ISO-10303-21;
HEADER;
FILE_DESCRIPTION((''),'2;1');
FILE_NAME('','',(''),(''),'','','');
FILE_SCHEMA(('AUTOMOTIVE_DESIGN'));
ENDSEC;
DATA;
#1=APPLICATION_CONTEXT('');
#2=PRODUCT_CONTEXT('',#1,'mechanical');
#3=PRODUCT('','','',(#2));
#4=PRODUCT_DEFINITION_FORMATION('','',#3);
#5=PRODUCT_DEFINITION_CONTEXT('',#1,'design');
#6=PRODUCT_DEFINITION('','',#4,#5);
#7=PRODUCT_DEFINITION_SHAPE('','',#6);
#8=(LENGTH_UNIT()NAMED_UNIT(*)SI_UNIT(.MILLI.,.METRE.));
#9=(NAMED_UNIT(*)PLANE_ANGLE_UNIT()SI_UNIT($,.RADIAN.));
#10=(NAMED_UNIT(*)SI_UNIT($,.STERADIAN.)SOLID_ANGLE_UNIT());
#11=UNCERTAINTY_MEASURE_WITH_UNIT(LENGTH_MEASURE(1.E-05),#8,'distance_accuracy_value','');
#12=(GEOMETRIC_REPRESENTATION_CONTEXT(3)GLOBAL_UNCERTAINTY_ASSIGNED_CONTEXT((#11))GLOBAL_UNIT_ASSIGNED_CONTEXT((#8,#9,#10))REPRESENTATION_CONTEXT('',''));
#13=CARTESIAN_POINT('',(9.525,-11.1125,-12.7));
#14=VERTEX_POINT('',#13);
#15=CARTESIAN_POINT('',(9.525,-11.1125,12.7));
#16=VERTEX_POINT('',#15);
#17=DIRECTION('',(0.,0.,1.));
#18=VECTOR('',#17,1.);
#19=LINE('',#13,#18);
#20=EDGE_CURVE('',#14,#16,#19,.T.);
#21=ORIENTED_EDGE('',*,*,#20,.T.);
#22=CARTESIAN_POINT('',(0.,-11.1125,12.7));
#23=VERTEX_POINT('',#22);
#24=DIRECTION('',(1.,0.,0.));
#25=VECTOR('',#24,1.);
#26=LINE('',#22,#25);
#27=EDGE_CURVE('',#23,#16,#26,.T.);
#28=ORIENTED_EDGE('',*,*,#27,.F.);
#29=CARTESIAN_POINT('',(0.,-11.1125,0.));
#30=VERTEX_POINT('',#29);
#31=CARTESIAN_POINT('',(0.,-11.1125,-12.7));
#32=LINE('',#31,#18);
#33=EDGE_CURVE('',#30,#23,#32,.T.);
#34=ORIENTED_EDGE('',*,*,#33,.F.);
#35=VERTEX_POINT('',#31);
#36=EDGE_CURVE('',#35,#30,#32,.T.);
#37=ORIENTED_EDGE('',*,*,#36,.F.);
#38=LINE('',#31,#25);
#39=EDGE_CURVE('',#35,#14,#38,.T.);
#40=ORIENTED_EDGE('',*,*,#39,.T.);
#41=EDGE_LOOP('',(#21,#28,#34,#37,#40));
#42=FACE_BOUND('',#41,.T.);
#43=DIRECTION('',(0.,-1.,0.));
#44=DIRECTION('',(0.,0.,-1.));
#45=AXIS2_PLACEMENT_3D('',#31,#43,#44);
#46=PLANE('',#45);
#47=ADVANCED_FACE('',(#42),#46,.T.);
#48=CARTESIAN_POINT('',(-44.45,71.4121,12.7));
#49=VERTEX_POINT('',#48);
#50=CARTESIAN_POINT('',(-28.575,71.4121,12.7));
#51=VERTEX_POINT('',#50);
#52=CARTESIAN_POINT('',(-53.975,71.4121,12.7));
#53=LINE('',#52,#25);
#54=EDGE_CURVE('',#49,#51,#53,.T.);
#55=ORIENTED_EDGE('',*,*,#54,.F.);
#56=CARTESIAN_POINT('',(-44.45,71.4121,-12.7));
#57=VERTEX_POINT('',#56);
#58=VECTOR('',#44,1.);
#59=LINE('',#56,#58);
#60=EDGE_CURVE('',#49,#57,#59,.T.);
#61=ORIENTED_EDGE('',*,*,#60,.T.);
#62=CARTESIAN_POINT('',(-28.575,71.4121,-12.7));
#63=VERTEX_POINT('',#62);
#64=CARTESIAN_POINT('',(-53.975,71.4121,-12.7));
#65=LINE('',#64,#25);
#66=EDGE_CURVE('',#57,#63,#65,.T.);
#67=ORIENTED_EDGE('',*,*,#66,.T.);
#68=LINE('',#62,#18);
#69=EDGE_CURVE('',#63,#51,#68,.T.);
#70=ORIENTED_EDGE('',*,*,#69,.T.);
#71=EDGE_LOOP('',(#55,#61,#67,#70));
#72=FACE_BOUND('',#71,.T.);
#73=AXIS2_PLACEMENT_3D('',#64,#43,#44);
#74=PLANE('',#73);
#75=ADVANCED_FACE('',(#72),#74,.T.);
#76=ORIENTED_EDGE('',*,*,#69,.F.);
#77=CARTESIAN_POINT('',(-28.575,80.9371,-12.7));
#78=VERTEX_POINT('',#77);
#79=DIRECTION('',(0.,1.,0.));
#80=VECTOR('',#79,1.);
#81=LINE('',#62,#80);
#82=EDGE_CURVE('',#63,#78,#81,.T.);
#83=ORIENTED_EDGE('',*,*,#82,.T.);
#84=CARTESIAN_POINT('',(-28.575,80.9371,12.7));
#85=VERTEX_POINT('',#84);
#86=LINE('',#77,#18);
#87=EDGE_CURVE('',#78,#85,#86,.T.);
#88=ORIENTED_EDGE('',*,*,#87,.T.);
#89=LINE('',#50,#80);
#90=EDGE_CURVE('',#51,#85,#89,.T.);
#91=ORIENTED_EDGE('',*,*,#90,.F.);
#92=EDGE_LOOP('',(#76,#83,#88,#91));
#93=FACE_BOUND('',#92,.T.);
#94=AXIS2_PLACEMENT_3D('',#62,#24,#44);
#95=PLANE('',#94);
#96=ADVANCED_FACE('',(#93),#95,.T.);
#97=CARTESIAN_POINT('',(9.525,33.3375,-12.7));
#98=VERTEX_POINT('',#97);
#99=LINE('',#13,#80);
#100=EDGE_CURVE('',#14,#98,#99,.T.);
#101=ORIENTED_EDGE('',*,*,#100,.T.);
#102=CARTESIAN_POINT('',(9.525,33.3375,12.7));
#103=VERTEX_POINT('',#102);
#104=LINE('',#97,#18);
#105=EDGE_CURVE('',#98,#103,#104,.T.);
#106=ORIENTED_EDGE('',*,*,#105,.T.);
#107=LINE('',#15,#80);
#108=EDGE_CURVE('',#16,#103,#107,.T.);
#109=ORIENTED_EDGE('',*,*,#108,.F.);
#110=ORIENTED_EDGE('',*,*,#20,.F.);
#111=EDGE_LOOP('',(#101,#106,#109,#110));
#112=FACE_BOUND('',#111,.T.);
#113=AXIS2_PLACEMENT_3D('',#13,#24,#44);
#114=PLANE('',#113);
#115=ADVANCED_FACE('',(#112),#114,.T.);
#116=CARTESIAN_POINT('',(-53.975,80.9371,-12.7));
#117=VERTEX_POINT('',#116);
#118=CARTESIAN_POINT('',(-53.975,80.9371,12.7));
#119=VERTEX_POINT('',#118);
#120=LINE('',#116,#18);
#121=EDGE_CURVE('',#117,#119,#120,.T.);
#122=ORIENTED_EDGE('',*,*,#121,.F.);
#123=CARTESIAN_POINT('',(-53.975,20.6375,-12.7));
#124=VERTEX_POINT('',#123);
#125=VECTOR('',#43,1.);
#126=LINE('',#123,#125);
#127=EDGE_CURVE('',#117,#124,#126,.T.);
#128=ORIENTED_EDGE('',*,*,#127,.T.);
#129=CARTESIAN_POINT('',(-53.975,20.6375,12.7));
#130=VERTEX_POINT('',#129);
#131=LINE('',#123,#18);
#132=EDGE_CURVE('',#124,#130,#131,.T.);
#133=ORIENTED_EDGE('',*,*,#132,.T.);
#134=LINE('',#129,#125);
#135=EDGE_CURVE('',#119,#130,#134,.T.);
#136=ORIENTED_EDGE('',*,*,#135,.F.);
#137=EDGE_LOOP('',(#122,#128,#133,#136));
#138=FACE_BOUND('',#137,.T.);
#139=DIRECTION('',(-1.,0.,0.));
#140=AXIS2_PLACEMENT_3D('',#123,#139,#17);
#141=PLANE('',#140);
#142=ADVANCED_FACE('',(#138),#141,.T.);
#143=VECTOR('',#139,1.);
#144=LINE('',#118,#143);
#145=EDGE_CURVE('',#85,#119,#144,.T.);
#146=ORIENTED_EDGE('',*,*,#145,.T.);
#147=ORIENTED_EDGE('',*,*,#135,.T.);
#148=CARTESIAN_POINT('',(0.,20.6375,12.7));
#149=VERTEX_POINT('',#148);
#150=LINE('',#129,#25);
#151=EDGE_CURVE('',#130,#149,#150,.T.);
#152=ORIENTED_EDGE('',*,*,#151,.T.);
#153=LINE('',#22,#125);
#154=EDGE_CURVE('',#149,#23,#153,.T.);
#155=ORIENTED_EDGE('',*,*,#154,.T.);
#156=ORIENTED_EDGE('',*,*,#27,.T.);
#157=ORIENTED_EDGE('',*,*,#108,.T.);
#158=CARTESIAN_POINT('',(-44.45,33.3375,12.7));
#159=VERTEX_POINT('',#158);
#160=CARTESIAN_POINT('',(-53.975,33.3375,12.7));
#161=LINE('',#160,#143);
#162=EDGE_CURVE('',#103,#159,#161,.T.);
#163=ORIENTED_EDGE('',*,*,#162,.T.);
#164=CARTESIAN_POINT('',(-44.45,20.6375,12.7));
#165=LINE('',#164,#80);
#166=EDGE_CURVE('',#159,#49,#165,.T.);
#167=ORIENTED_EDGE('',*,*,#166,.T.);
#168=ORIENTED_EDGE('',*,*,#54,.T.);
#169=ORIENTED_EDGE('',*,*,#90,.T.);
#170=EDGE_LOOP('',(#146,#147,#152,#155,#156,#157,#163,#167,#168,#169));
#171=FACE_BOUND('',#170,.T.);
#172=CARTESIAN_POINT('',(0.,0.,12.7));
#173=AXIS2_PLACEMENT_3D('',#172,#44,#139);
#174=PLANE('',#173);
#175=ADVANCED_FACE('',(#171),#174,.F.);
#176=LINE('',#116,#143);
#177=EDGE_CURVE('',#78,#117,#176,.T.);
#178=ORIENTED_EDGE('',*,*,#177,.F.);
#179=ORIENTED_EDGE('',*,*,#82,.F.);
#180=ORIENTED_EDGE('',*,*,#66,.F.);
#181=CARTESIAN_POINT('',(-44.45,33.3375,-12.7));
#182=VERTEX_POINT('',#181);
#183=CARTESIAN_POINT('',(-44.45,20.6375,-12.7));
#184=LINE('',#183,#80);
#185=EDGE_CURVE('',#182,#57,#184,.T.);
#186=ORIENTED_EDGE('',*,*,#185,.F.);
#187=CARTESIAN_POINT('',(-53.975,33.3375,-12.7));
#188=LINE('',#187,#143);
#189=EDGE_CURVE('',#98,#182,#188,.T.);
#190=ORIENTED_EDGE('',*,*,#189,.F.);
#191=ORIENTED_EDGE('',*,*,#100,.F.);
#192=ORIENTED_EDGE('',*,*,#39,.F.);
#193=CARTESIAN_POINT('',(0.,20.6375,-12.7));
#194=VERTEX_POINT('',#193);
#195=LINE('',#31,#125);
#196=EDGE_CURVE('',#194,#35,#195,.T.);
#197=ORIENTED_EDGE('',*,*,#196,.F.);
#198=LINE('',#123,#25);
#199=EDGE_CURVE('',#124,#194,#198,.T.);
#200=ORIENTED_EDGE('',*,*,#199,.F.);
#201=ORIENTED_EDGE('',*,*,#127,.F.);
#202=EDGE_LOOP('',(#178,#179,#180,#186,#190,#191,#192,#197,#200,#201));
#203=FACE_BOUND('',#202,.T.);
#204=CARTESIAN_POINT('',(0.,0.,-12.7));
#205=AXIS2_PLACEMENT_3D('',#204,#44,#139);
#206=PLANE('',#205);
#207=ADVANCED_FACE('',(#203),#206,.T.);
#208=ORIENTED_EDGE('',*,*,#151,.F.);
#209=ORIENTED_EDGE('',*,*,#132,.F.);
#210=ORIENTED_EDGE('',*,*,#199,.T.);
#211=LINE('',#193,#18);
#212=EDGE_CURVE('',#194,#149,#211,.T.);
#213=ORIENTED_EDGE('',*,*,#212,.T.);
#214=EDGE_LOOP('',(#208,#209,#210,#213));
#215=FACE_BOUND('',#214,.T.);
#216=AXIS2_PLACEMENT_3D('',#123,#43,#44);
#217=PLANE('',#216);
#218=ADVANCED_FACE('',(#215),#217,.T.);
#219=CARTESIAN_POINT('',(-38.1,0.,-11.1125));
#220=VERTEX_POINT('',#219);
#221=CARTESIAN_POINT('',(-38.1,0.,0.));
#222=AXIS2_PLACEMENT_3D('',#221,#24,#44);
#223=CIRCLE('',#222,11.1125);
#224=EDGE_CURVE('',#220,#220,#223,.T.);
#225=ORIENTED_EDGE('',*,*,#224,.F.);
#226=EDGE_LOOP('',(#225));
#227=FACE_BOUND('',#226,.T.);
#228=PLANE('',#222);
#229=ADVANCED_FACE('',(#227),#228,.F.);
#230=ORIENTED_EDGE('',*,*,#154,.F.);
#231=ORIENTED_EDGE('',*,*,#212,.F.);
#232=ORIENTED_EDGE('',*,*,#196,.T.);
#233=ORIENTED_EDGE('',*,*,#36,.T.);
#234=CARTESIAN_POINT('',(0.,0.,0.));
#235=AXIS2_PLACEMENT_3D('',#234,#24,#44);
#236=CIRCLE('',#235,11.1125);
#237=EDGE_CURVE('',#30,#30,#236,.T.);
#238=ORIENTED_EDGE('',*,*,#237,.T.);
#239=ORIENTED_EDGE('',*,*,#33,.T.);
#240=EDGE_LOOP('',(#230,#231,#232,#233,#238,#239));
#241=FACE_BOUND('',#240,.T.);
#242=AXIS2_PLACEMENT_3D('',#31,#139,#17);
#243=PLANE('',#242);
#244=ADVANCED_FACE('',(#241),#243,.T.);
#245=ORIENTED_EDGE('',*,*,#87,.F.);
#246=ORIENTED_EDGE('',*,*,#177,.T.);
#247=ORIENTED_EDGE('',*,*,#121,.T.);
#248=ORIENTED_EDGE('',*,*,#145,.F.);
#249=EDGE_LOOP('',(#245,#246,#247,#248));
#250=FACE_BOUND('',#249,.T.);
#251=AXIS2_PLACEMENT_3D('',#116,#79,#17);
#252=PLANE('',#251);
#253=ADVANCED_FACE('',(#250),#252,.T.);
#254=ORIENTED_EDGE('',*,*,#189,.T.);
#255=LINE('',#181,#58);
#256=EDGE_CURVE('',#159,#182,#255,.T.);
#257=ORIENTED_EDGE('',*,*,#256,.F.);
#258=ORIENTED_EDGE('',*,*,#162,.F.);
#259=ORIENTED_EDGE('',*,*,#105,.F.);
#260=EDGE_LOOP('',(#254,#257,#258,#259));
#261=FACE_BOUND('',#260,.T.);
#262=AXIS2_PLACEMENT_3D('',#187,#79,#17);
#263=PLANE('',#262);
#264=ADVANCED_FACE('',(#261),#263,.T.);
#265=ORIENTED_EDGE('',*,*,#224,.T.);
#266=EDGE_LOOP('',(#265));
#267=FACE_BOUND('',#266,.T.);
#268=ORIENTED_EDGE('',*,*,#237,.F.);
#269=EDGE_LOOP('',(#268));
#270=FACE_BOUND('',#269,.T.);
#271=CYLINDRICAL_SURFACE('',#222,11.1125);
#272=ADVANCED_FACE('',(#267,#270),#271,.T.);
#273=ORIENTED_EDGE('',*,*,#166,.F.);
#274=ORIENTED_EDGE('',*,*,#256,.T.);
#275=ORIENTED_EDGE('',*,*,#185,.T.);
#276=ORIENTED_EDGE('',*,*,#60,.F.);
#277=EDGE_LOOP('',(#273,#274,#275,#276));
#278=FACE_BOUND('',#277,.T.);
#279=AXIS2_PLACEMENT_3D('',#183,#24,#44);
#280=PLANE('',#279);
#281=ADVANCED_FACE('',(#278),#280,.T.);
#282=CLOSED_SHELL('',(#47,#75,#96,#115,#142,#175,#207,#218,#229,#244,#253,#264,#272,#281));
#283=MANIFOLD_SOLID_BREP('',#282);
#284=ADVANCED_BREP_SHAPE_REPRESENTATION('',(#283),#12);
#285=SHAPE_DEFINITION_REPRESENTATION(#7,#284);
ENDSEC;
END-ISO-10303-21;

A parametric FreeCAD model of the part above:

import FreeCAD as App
import Part
import Sketcher
Q = App.Units.Quantity

doc = App.newDocument("Part")
body = doc.addObject("PartDesign::Body", "Body")

sketch1 = doc.addObject("Sketcher::SketchObject", "Sketch")
body.addObject(sketch1)
sketch1.AttachmentSupport = (doc.YZ_Plane, [""])
sketch1.MapMode = "FlatFace"
sketch1.addGeometry(Part.Circle(App.Vector(0, 0, 0), App.Vector(0, 0, 1), 11), False)
sketch1.addConstraint([
    Sketcher.Constraint("Coincident", 0, 3, -1, 1),
    Sketcher.Constraint("Diameter", 0, Q("0.875 in")),
])
pad1 = doc.addObject("PartDesign::Pad", "Pad")
body.addObject(pad1)
pad1.Profile = sketch1
pad1.Length = Q("1.5 in")
pad1.Reversed = True

sketch2 = doc.addObject("Sketcher::SketchObject", "Sketch001")
body.addObject(sketch2)
sketch2.AttachmentSupport = (doc.XY_Plane, [""])
sketch2.MapMode = "FlatFace"
sketch2.addGeometry([
    Part.LineSegment(App.Vector(0, 21, 0), App.Vector(0, -11, 0)),
    Part.LineSegment(App.Vector(0, -11, 0), App.Vector(10, -11, 0)),
    Part.LineSegment(App.Vector(10, -11, 0), App.Vector(10, 21, 0)),
    Part.LineSegment(App.Vector(10, 21, 0), App.Vector(0, 21, 0)),
], False)
sketch2.addConstraint([
    Sketcher.Constraint("Coincident", 0, 2, 1, 1),
    Sketcher.Constraint("Coincident", 1, 2, 2, 1),
    Sketcher.Constraint("Coincident", 2, 2, 3, 1),
    Sketcher.Constraint("Coincident", 3, 2, 0, 1),
    Sketcher.Constraint("Vertical", 0),
    Sketcher.Constraint("Horizontal", 1),
    Sketcher.Constraint("Vertical", 2),
    Sketcher.Constraint("Horizontal", 3),
    Sketcher.Constraint("PointOnObject", 0, 2, -2),
    Sketcher.Constraint("DistanceY", 0, 2, 0, 1, Q("1.25 in")),
    Sketcher.Constraint("DistanceX", 1, 1, 1, 2, Q("0.375 in")),
    Sketcher.Constraint("DistanceY", 0, 2, -1, 1, Q("0.4375 in")),
])
pad2 = doc.addObject("PartDesign::Pad", "Pad001")
body.addObject(pad2)
pad2.Profile = sketch2
pad2.Type = "TwoLengths"
pad2.Length = Q("0.5 in")
pad2.Length2 = Q("0.5 in")

sketch3 = doc.addObject("Sketcher::SketchObject", "Sketch002")
body.addObject(sketch3)
sketch3.AttachmentSupport = (doc.XY_Plane, [""])
sketch3.MapMode = "FlatFace"
sketch3.addGeometry([
    Part.LineSegment(App.Vector(-54, 33, 0), App.Vector(-54, 21, 0)),
    Part.LineSegment(App.Vector(-54, 21, 0), App.Vector(10, 21, 0)),
    Part.LineSegment(App.Vector(10, 21, 0), App.Vector(10, 33, 0)),
    Part.LineSegment(App.Vector(10, 33, 0), App.Vector(-54, 33, 0)),
], False)
sketch3.addConstraint([
    Sketcher.Constraint("Coincident", 0, 2, 1, 1),
    Sketcher.Constraint("Coincident", 1, 2, 2, 1),
    Sketcher.Constraint("Coincident", 2, 2, 3, 1),
    Sketcher.Constraint("Coincident", 3, 2, 0, 1),
    Sketcher.Constraint("Vertical", 0),
    Sketcher.Constraint("Horizontal", 1),
    Sketcher.Constraint("Vertical", 2),
    Sketcher.Constraint("Horizontal", 3),
    Sketcher.Constraint("DistanceX", 1, 1, 1, 2, Q("2.5 in")),
    Sketcher.Constraint("DistanceY", 0, 2, 0, 1, Q("0.5 in")),
    Sketcher.Constraint("DistanceX", 0, 2, -1, 1, Q("2.125 in")),
    Sketcher.Constraint("DistanceY", -1, 1, 0, 2, Q("0.8125 in")),
])
pad3 = doc.addObject("PartDesign::Pad", "Pad002")
body.addObject(pad3)
pad3.Profile = sketch3
pad3.Type = "TwoLengths"
pad3.Length = Q("0.5 in")
pad3.Length2 = Q("0.5 in")

sketch4 = doc.addObject("Sketcher::SketchObject", "Sketch003")
body.addObject(sketch4)
sketch4.AttachmentSupport = (doc.XY_Plane, [""])
sketch4.MapMode = "FlatFace"
sketch4.addGeometry([
    Part.LineSegment(App.Vector(-54, 81, 0), App.Vector(-54, 21, 0)),
    Part.LineSegment(App.Vector(-54, 21, 0), App.Vector(-44, 21, 0)),
    Part.LineSegment(App.Vector(-44, 21, 0), App.Vector(-44, 81, 0)),
    Part.LineSegment(App.Vector(-44, 81, 0), App.Vector(-54, 81, 0)),
], False)
sketch4.addConstraint([
    Sketcher.Constraint("Coincident", 0, 2, 1, 1),
    Sketcher.Constraint("Coincident", 1, 2, 2, 1),
    Sketcher.Constraint("Coincident", 2, 2, 3, 1),
    Sketcher.Constraint("Coincident", 3, 2, 0, 1),
    Sketcher.Constraint("Vertical", 0),
    Sketcher.Constraint("Horizontal", 1),
    Sketcher.Constraint("Vertical", 2),
    Sketcher.Constraint("Horizontal", 3),
    Sketcher.Constraint("DistanceX", 1, 1, 1, 2, Q("0.375 in")),
    Sketcher.Constraint("DistanceY", 0, 2, 0, 1, Q("2.374 in")),
    Sketcher.Constraint("DistanceX", 1, 2, -1, 1, Q("1.75 in")),
    Sketcher.Constraint("DistanceY", -1, 1, 0, 2, Q("0.8125 in")),
])
pad4 = doc.addObject("PartDesign::Pad", "Pad003")
body.addObject(pad4)
pad4.Profile = sketch4
pad4.Type = "TwoLengths"
pad4.Length = Q("0.5 in")
pad4.Length2 = Q("0.5 in")

sketch5 = doc.addObject("Sketcher::SketchObject", "Sketch004")
body.addObject(sketch5)
sketch5.AttachmentSupport = (doc.XY_Plane, [""])
sketch5.MapMode = "FlatFace"
sketch5.addGeometry([
    Part.LineSegment(App.Vector(-54, 81, 0), App.Vector(-54, 71, 0)),
    Part.LineSegment(App.Vector(-54, 71, 0), App.Vector(-29, 71, 0)),
    Part.LineSegment(App.Vector(-29, 71, 0), App.Vector(-29, 81, 0)),
    Part.LineSegment(App.Vector(-29, 81, 0), App.Vector(-54, 81, 0)),
], False)
sketch5.addConstraint([
    Sketcher.Constraint("Coincident", 0, 2, 1, 1),
    Sketcher.Constraint("Coincident", 1, 2, 2, 1),
    Sketcher.Constraint("Coincident", 2, 2, 3, 1),
    Sketcher.Constraint("Coincident", 3, 2, 0, 1),
    Sketcher.Constraint("Vertical", 0),
    Sketcher.Constraint("Horizontal", 1),
    Sketcher.Constraint("Vertical", 2),
    Sketcher.Constraint("Horizontal", 3),
    Sketcher.Constraint("DistanceX", 1, 1, 1, 2, Q("1 in")),
    Sketcher.Constraint("DistanceY", 0, 2, 0, 1, Q("0.375 in")),
    Sketcher.Constraint("DistanceX", 0, 2, -1, 1, Q("2.125 in")),
    Sketcher.Constraint("DistanceY", -1, 1, 0, 2, Q("2.8115 in")),
])
pad5 = doc.addObject("PartDesign::Pad", "Pad004")
body.addObject(pad5)
pad5.Profile = sketch5
pad5.Type = "TwoLengths"
pad5.Length = Q("0.5 in")
pad5.Length2 = Q("0.5 in")

doc.recompute()
